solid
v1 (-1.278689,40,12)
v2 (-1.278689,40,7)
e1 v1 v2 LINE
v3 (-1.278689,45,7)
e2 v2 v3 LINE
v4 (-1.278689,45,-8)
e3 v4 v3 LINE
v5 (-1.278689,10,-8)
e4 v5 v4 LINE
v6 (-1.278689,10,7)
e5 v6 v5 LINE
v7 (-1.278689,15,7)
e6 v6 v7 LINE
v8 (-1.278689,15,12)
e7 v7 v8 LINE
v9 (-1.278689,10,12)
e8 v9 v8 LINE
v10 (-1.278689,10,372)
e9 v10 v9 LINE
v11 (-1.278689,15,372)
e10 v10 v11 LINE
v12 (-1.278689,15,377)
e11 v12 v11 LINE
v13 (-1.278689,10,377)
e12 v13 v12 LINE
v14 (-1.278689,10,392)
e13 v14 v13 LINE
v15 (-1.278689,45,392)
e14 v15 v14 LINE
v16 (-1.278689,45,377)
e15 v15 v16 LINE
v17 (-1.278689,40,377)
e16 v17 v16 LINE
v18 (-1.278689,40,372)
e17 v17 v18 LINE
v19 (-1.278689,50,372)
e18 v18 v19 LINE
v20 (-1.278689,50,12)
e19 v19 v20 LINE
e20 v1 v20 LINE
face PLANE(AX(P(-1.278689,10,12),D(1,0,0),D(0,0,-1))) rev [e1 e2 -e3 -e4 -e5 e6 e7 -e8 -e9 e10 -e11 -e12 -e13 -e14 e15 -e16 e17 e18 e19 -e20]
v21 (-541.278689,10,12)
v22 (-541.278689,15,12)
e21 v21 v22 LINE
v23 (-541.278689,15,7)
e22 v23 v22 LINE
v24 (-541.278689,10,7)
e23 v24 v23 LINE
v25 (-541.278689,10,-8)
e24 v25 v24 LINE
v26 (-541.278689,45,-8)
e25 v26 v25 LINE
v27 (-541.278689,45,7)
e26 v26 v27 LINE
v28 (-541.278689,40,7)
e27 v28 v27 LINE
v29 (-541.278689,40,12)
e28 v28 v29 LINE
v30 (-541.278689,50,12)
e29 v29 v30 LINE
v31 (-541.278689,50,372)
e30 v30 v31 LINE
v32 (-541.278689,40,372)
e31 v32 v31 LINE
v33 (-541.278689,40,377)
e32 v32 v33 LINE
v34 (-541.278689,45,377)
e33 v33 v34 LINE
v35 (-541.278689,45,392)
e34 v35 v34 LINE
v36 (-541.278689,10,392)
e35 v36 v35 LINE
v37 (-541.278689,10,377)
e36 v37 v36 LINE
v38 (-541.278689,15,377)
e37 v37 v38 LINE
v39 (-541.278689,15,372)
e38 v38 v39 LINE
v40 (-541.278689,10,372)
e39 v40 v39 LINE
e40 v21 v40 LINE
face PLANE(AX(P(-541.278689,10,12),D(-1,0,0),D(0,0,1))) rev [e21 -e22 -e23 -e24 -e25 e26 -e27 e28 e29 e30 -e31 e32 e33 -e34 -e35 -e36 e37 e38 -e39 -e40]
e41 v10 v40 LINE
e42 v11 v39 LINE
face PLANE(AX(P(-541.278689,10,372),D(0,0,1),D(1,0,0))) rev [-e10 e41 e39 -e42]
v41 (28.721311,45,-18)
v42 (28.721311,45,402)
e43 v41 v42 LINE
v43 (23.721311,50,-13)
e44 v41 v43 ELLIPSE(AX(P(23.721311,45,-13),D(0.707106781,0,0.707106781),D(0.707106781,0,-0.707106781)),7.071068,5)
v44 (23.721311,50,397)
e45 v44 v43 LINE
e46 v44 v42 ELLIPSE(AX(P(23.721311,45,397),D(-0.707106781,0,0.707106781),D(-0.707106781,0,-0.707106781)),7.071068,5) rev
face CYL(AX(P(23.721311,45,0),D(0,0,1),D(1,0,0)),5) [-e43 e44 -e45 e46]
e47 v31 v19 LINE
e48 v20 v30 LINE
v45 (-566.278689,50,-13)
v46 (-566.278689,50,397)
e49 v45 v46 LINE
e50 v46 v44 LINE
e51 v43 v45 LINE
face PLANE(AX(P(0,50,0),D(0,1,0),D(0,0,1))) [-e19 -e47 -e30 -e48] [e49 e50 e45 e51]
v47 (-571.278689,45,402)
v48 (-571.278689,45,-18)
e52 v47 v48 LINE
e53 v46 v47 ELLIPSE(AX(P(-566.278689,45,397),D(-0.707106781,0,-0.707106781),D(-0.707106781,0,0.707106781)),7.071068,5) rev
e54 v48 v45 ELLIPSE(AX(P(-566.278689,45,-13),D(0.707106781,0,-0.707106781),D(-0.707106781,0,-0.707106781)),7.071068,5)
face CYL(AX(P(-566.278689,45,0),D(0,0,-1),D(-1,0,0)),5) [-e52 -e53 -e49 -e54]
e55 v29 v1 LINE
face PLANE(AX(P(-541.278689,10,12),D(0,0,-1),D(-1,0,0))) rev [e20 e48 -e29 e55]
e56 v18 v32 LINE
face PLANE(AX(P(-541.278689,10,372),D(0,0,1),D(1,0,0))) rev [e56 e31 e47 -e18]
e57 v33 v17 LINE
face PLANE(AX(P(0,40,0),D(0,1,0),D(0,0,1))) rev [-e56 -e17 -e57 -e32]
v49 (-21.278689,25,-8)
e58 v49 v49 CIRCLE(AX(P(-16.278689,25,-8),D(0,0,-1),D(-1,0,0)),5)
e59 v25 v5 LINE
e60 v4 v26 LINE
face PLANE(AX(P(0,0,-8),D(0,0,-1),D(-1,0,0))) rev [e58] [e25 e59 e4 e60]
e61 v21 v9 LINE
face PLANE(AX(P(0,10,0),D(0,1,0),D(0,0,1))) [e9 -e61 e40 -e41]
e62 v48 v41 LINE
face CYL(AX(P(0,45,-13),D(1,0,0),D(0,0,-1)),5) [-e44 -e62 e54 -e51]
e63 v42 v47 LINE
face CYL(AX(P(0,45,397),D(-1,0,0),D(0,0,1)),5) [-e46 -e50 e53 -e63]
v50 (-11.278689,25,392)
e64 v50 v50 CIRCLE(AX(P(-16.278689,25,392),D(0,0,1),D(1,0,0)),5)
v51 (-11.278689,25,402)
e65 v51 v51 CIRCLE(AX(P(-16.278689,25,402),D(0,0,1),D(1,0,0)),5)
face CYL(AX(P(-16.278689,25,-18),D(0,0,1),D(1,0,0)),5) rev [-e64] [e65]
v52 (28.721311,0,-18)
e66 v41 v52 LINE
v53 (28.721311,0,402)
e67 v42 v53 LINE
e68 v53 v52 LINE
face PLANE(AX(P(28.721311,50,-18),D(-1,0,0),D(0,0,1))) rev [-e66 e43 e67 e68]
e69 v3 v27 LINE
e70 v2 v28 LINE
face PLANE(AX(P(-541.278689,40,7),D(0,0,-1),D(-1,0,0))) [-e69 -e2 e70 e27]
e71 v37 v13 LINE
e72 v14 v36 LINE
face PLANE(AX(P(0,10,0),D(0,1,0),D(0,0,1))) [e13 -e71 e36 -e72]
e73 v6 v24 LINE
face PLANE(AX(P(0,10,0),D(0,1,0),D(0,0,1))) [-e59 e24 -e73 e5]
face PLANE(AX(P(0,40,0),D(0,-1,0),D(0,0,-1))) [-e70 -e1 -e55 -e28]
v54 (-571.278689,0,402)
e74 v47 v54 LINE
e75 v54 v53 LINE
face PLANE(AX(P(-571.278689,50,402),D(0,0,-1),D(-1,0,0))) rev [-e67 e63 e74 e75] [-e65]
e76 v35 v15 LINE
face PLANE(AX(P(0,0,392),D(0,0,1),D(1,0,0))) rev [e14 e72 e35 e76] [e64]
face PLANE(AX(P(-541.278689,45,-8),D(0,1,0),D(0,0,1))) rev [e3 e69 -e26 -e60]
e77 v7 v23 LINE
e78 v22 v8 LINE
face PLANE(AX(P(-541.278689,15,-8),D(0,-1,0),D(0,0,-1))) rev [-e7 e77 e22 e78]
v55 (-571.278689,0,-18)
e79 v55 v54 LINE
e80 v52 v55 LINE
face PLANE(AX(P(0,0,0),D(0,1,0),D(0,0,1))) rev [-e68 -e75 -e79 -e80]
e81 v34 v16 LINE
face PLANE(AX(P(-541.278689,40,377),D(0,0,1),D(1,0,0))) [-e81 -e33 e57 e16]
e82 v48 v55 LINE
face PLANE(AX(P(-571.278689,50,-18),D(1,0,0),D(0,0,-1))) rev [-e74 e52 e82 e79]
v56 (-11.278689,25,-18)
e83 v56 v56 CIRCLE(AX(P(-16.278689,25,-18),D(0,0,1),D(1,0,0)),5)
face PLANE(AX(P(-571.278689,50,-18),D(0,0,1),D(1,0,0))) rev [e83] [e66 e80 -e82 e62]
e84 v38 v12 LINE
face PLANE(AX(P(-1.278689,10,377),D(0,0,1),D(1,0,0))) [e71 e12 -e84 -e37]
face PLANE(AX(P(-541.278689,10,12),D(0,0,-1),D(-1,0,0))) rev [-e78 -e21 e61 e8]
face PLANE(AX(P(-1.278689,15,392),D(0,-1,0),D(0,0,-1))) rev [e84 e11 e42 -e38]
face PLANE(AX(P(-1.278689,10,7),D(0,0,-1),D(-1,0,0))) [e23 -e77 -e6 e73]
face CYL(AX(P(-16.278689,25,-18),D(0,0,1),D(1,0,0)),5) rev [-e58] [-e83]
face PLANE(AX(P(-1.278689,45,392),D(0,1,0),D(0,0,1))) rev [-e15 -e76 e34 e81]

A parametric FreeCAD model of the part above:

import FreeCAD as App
import Part
import Sketcher
Q = App.Units.Quantity


def edges_at(feature, points):
    """Names of the edges that pass closest to the given points."""
    edges = feature.Shape.Edges
    near = lambda p: min(range(len(edges)), key=lambda i: edges[i].distToShape(Part.Vertex(*p))[0])
    return sorted({f"Edge{near(p) + 1}" for p in points})


def add_polygon(sketch, points):
    """Adds a closed chain of lines whose ends are joined by coincident constraints."""
    first, n = sketch.GeometryCount, len(points)
    for a, b in zip(points, points[1:] + points[:1]):
        sketch.addGeometry(Part.LineSegment(App.Vector(*a, 0), App.Vector(*b, 0)), False)
    for i in range(n):
        sketch.addConstraint(Sketcher.Constraint("Coincident", first + i, 2, first + (i + 1) % n, 1))

doc = App.newDocument("Part")
body = doc.addObject("PartDesign::Body", "Body")

# Sketch on XZ plane
sketch1 = body.newObject("Sketcher::SketchObject", "Sketch")
sketch1.AttachmentSupport = (doc.getObject("XZ_Plane"), [""])
sketch1.MapMode = "FlatFace"
add_polygon(sketch1, [(-571, -18), (-571, 402), (29, 402), (29, -18)])  # lines 0-3
sketch1.addConstraint([
    Sketcher.Constraint("Vertical", 0),
    Sketcher.Constraint("Horizontal", 1),
    Sketcher.Constraint("Vertical", 2),
    Sketcher.Constraint("Horizontal", 3),
    Sketcher.Constraint("DistanceX", 1, 1, 1, 2, Q("600 mm")),
    Sketcher.Constraint("DistanceY", 0, 1, 0, 2, Q("420 mm")),
    Sketcher.Constraint("DistanceY", -1, 1, 0, 2, Q("402 mm")),
    Sketcher.Constraint("DistanceX", 0, 2, -1, 1, Q("571.278689 mm")),
])
pad1 = body.newObject("PartDesign::Pad", "Pad")
pad1.Profile = sketch1
pad1.Length = 50
pad1.Reversed = True

# Sketch on XZ plane
sketch2 = body.newObject("Sketcher::SketchObject", "Sketch001")
sketch2.AttachmentSupport = (doc.getObject("XZ_Plane"), [""])
sketch2.MapMode = "FlatFace"
sketch2.AttachmentOffset = App.Placement(App.Vector(0, 0, -50), App.Rotation())
add_polygon(sketch2, [(-541, 12), (-541, 372), (-1, 372), (-1, 12)])  # lines 0-3
sketch2.addConstraint([
    Sketcher.Constraint("Vertical", 0),
    Sketcher.Constraint("Horizontal", 1),
    Sketcher.Constraint("Vertical", 2),
    Sketcher.Constraint("Horizontal", 3),
    Sketcher.Constraint("DistanceX", 1, 1, 1, 2, Q("540 mm")),
    Sketcher.Constraint("DistanceY", 0, 1, 0, 2, Q("360 mm")),
    Sketcher.Constraint("DistanceY", -1, 1, 0, 2, Q("372 mm")),
    Sketcher.Constraint("DistanceX", 0, 2, -1, 1, Q("541.278689 mm")),
])
pocket1 = body.newObject("PartDesign::Pocket", "Pocket")
pocket1.Profile = sketch2
pocket1.Length = 40
pocket1.Reversed = True

# Sketch on XY plane
sketch3 = body.newObject("Sketcher::SketchObject", "Sketch002")
sketch3.AttachmentSupport = (doc.getObject("XY_Plane"), [""])
sketch3.MapMode = "FlatFace"
sketch3.AttachmentOffset = App.Placement(App.Vector(0, 0, 12), App.Rotation())
add_polygon(sketch3, [(-541, 40), (-541, 10), (-1, 10), (-1, 40)])  # lines 0-3
sketch3.addConstraint([
    Sketcher.Constraint("Vertical", 0),
    Sketcher.Constraint("Horizontal", 1),
    Sketcher.Constraint("Vertical", 2),
    Sketcher.Constraint("Horizontal", 3),
    Sketcher.Constraint("DistanceX", 1, 1, 1, 2, Q("540 mm")),
    Sketcher.Constraint("DistanceY", 0, 2, 0, 1, Q("30 mm")),
    Sketcher.Constraint("DistanceY", -1, 1, 0, 2, Q("10 mm")),
    Sketcher.Constraint("DistanceX", 0, 2, -1, 1, Q("541.278689 mm")),
])
pocket2 = body.newObject("PartDesign::Pocket", "Pocket001")
pocket2.Profile = sketch3
pocket2.Length = 20

# Sketch on XY plane
sketch4 = body.newObject("Sketcher::SketchObject", "Sketch003")
sketch4.AttachmentSupport = (doc.getObject("XY_Plane"), [""])
sketch4.MapMode = "FlatFace"
sketch4.AttachmentOffset = App.Placement(App.Vector(0, 0, 372), App.Rotation())
add_polygon(sketch4, [(-1, 40), (-1, 10), (-541, 10), (-541, 40)])  # lines 0-3
sketch4.addConstraint([
    Sketcher.Constraint("Vertical", 0),
    Sketcher.Constraint("Horizontal", 1),
    Sketcher.Constraint("Vertical", 2),
    Sketcher.Constraint("Horizontal", 3),
    Sketcher.Constraint("DistanceX", 1, 2, 1, 1, Q("540 mm")),
    Sketcher.Constraint("DistanceY", 0, 2, 0, 1, Q("30 mm")),
    Sketcher.Constraint("DistanceY", -1, 1, 0, 2, Q("10 mm")),
    Sketcher.Constraint("DistanceX", 0, 2, -1, 1, Q("1.278689 mm")),
])
pocket3 = body.newObject("PartDesign::Pocket", "Pocket002")
pocket3.Profile = sketch4
pocket3.Length = 20
pocket3.Reversed = True

# Sketch on XZ plane
sketch5 = body.newObject("Sketcher::SketchObject", "Sketch004")
sketch5.AttachmentSupport = (doc.getObject("XZ_Plane"), [""])
sketch5.MapMode = "FlatFace"
sketch5.AttachmentOffset = App.Placement(App.Vector(0, 0, -50), App.Rotation())
add_polygon(sketch5, [(-541, 7), (-541, 12), (-1, 12), (-1, 7)])  # lines 0-3
sketch5.addConstraint([
    Sketcher.Constraint("Vertical", 0),
    Sketcher.Constraint("Horizontal", 1),
    Sketcher.Constraint("Vertical", 2),
    Sketcher.Constraint("Horizontal", 3),
    Sketcher.Constraint("DistanceX", 1, 1, 1, 2, Q("540 mm")),
    Sketcher.Constraint("DistanceY", 0, 1, 0, 2, Q("5 mm")),
    Sketcher.Constraint("DistanceY", -1, 1, 0, 2, Q("12 mm")),
    Sketcher.Constraint("DistanceX", 0, 2, -1, 1, Q("541.278689 mm")),
])
pad2 = body.newObject("PartDesign::Pad", "Pad001")
pad2.Profile = sketch5
pad2.Length = 40

# Sketch on XZ plane
sketch6 = body.newObject("Sketcher::SketchObject", "Sketch005")
sketch6.AttachmentSupport = (doc.getObject("XZ_Plane"), [""])
sketch6.MapMode = "FlatFace"
sketch6.AttachmentOffset = App.Placement(App.Vector(0, 0, -50), App.Rotation())
add_polygon(sketch6, [(-541, 372), (-541, 377), (-1, 377), (-1, 372)])  # lines 0-3
sketch6.addConstraint([
    Sketcher.Constraint("Vertical", 0),
    Sketcher.Constraint("Horizontal", 1),
    Sketcher.Constraint("Vertical", 2),
    Sketcher.Constraint("Horizontal", 3),
    Sketcher.Constraint("DistanceX", 1, 1, 1, 2, Q("540 mm")),
    Sketcher.Constraint("DistanceY", 0, 1, 0, 2, Q("5 mm")),
    Sketcher.Constraint("DistanceY", -1, 1, 0, 2, Q("377 mm")),
    Sketcher.Constraint("DistanceX", 0, 2, -1, 1, Q("541.278689 mm")),
])
pad3 = body.newObject("PartDesign::Pad", "Pad002")
pad3.Profile = sketch6
pad3.Length = 40

# Sketch on XY plane
sketch7 = body.newObject("Sketcher::SketchObject", "Sketch006")
sketch7.AttachmentSupport = (doc.getObject("XY_Plane"), [""])
sketch7.MapMode = "FlatFace"
sketch7.AttachmentOffset = App.Placement(App.Vector(0, 0, 372), App.Rotation())
add_polygon(sketch7, [(-1, 45), (-1, 15), (-541, 15), (-541, 45)])  # lines 0-3
sketch7.addConstraint([
    Sketcher.Constraint("Vertical", 0),
    Sketcher.Constraint("Horizontal", 1),
    Sketcher.Constraint("Vertical", 2),
    Sketcher.Constraint("Horizontal", 3),
    Sketcher.Constraint("DistanceX", 1, 2, 1, 1, Q("540 mm")),
    Sketcher.Constraint("DistanceY", 0, 2, 0, 1, Q("30 mm")),
    Sketcher.Constraint("DistanceY", -1, 1, 0, 2, Q("15 mm")),
    Sketcher.Constraint("DistanceX", 0, 2, -1, 1, Q("1.278689 mm")),
])
pocket4 = body.newObject("PartDesign::Pocket", "Pocket003")
pocket4.Profile = sketch7
pocket4.Length = 20
pocket4.Reversed = True

# Sketch on XY plane
sketch8 = body.newObject("Sketcher::SketchObject", "Sketch007")
sketch8.AttachmentSupport = (doc.getObject("XY_Plane"), [""])
sketch8.MapMode = "FlatFace"
sketch8.AttachmentOffset = App.Placement(App.Vector(0, 0, 12), App.Rotation())
add_polygon(sketch8, [(-541, 45), (-541, 15), (-1, 15), (-1, 45)])  # lines 0-3
sketch8.addConstraint([
    Sketcher.Constraint("Vertical", 0),
    Sketcher.Constraint("Horizontal", 1),
    Sketcher.Constraint("Vertical", 2),
    Sketcher.Constraint("Horizontal", 3),
    Sketcher.Constraint("DistanceX", 1, 1, 1, 2, Q("540 mm")),
    Sketcher.Constraint("DistanceY", 0, 2, 0, 1, Q("30 mm")),
    Sketcher.Constraint("DistanceY", -1, 1, 0, 2, Q("15 mm")),
    Sketcher.Constraint("DistanceX", 0, 2, -1, 1, Q("541.278689 mm")),
])
pocket5 = body.newObject("PartDesign::Pocket", "Pocket004")
pocket5.Profile = sketch8
pocket5.Length = 20

# Sketch on XZ plane
sketch9 = body.newObject("Sketcher::SketchObject", "Sketch008")
sketch9.AttachmentSupport = (doc.getObject("XZ_Plane"), [""])
sketch9.MapMode = "FlatFace"
sketch9.AttachmentOffset = App.Placement(App.Vector(0, 0, -50), App.Rotation())
add_polygon(sketch9, [(-541, 7), (-541, 12), (-1, 12), (-1, 7)])  # lines 0-3
add_polygon(sketch9, [(-541, 372), (-541, 377), (-1, 377), (-1, 372)])  # lines 4-7
sketch9.addConstraint([
    Sketcher.Constraint("Vertical", 0),
    Sketcher.Constraint("Horizontal", 1),
    Sketcher.Constraint("Vertical", 2),
    Sketcher.Constraint("Horizontal", 3),
    Sketcher.Constraint("Vertical", 4),
    Sketcher.Constraint("Horizontal", 5),
    Sketcher.Constraint("Vertical", 6),
    Sketcher.Constraint("Horizontal", 7),
    Sketcher.Constraint("Vertical", 3, 2, 4, 2),
    Sketcher.Constraint("Vertical", 2, 2, 5, 2),
    Sketcher.Constraint("Equal", 2, 4),
    Sketcher.Constraint("DistanceX", 1, 1, 1, 2, Q("540 mm")),
    Sketcher.Constraint("DistanceY", 0, 1, 0, 2, Q("5 mm")),
    Sketcher.Constraint("DistanceY", -1, 1, 0, 2, Q("12 mm")),
    Sketcher.Constraint("DistanceY", -1, 1, 4, 2, Q("377 mm")),
    Sketcher.Constraint("DistanceX", 0, 2, -1, 1, Q("541.278689 mm")),
])
pad4 = body.newObject("PartDesign::Pad", "Pad003")
pad4.Profile = sketch9
pad4.Length = 10

# Sketch on XY plane
sketch10 = body.newObject("Sketcher::SketchObject", "Sketch009")
sketch10.AttachmentSupport = (doc.getObject("XY_Plane"), [""])
sketch10.MapMode = "FlatFace"
sketch10.AttachmentOffset = App.Placement(App.Vector(0, 0, 402), App.Rotation())
sketch10.addGeometry(Part.Circle(App.Vector(-16, 25, 0), App.Vector(0, 0, 1), 5), False)
sketch10.addConstraint([
    Sketcher.Constraint("Diameter", 0, Q("10 mm")),
    Sketcher.Constraint("DistanceY", -1, 1, 0, 3, Q("25 mm")),
    Sketcher.Constraint("DistanceX", 0, 3, -1, 1, Q("16.278689 mm")),
])
pocket6 = body.newObject("PartDesign::Pocket", "Pocket005")
pocket6.Profile = sketch10
pocket6.Type = "ThroughAll"
doc.recompute()

fillet = body.newObject("PartDesign::Fillet", "Fillet")
fillet.Base = (pocket6, edges_at(pocket6, [
    (28.721, 50, 192),
    (-271.279, 50, -18),
    (-571.279, 50, 192),
    (-271.279, 50, 402),
]))
fillet.Radius = 5

doc.recompute()
